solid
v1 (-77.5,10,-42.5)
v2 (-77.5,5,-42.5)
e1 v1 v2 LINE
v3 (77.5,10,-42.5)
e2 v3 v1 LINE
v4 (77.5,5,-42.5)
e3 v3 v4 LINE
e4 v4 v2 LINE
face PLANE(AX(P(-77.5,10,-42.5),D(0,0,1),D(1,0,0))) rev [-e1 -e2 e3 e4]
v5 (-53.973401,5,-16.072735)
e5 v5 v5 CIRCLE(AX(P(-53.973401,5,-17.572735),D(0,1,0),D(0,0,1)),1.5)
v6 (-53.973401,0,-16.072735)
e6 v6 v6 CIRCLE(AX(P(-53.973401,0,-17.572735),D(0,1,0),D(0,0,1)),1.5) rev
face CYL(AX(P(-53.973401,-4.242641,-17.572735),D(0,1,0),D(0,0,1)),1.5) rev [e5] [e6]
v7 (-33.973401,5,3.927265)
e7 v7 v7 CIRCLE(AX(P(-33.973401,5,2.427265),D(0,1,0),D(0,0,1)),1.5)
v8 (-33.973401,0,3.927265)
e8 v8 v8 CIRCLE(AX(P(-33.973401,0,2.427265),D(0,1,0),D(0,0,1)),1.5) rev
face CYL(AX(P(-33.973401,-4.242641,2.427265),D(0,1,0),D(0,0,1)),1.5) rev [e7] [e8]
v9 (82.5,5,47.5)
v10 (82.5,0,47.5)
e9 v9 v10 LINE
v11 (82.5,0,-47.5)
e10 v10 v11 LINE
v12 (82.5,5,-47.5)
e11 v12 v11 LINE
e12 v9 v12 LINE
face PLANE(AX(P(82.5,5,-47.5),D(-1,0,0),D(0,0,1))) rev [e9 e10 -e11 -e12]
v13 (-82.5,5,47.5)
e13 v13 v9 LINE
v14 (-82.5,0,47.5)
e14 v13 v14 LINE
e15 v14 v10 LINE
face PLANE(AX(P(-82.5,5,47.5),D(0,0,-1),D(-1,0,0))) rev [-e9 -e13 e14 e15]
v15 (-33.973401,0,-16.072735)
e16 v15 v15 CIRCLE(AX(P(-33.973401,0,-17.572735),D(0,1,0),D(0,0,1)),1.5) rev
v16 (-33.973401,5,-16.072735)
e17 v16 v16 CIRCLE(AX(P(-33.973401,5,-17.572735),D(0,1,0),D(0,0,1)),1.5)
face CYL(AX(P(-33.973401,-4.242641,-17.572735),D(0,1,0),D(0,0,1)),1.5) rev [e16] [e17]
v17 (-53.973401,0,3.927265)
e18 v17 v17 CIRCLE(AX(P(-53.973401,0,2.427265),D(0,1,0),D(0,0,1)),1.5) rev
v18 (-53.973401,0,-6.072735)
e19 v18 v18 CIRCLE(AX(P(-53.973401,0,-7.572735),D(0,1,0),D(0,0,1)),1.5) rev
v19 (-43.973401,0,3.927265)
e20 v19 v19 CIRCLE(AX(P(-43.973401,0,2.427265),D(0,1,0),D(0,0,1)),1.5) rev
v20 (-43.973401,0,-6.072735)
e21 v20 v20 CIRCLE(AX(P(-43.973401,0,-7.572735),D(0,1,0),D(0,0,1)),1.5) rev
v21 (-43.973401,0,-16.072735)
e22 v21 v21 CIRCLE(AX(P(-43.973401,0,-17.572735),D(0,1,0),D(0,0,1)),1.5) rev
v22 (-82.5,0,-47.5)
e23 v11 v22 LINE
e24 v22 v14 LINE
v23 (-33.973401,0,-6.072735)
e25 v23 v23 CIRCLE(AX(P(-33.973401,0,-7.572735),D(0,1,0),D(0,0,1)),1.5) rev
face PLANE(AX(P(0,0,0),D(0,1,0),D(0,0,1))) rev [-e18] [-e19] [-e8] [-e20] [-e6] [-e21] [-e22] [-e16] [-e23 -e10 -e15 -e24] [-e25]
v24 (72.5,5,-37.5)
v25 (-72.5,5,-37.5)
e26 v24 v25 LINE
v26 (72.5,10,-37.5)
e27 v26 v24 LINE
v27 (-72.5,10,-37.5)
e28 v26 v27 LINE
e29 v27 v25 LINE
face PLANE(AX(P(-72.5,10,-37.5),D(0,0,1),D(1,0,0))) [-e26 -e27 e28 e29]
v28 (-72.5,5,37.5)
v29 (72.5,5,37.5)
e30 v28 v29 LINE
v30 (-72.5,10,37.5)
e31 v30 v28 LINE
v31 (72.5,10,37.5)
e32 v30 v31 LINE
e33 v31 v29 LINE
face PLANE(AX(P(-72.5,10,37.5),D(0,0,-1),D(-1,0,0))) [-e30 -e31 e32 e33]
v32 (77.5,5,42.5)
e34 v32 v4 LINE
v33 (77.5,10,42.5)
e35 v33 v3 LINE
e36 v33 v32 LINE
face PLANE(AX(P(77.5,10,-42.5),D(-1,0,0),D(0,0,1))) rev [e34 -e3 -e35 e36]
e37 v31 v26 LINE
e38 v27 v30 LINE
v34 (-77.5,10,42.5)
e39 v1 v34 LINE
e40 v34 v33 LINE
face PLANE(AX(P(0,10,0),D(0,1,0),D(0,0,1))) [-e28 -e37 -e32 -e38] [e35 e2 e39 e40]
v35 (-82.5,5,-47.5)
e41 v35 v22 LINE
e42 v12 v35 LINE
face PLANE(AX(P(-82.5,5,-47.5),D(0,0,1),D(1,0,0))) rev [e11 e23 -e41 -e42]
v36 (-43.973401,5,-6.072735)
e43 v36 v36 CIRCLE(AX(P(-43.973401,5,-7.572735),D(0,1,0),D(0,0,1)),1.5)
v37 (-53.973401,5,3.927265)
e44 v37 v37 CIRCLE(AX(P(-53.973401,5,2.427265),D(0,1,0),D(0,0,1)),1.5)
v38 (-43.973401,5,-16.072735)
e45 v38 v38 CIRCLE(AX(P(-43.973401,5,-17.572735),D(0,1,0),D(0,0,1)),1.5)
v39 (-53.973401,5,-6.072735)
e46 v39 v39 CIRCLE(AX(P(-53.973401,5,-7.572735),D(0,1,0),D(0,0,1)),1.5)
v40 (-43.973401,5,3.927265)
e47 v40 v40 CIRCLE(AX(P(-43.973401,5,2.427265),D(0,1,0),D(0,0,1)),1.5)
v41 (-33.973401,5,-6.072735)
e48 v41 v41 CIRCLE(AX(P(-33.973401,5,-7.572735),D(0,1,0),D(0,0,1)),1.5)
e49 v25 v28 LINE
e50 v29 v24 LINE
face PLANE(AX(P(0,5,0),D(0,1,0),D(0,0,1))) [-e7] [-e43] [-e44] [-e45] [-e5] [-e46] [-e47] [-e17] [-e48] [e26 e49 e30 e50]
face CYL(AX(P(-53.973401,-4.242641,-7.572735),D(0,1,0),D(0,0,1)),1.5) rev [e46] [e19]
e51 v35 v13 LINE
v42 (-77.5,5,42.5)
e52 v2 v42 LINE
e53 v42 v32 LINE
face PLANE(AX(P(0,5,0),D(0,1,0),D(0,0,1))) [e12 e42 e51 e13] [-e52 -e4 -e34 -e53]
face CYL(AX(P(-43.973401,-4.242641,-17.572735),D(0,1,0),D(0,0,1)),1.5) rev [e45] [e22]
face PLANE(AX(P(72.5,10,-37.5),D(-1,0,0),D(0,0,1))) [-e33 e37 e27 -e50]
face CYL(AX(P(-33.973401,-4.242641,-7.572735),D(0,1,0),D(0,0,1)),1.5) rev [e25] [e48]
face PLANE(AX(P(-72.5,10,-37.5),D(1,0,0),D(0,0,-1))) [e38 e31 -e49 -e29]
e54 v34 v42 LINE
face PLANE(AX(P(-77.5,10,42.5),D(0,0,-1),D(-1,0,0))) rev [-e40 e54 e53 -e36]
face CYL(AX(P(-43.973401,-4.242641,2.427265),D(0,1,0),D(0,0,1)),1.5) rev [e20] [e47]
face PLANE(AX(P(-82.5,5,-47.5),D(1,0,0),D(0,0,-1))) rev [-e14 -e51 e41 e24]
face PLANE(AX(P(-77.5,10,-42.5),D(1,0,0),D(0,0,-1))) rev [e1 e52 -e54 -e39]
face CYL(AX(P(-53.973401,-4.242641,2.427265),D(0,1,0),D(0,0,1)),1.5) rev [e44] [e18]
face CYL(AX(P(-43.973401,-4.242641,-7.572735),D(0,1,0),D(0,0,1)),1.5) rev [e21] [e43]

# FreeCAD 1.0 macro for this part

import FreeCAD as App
import Part
import Sketcher


def add_polygon(sketch, points):
    """Adds a closed chain of lines whose ends are joined by coincident constraints."""
    first, n = sketch.GeometryCount, len(points)
    for a, b in zip(points, points[1:] + points[:1]):
        sketch.addGeometry(Part.LineSegment(App.Vector(*a, 0), App.Vector(*b, 0)), False)
    for i in range(n):
        sketch.addConstraint(Sketcher.Constraint("Coincident", first + i, 2, first + (i + 1) % n, 1))

doc = App.newDocument("Part")
params = doc.addObject("Spreadsheet::Sheet", "Params")
for row, (alias, value) in enumerate([
    ("sketch1_width", "165 mm"),
    ("sketch1_height", "95 mm"),
    ("pad1_length", "5 mm"),
    ("sketch2_width", "155 mm"),
    ("sketch2_width2", "145 mm"),
    ("sketch2_height", "85 mm"),
    ("sketch2_height2", "75 mm"),
    ("pad2_length", "5 mm"),
    ("sketch3_diameter", "3 mm"),
    ("pocket1_length", "5 mm"),
], start=1):
    params.set(f"A{row}", alias)
    params.set(f"B{row}", "=" + value)
    params.setAlias(f"B{row}", alias)

body = doc.addObject("PartDesign::Body", "Body")

# Sketch on XZ plane
sketch1 = body.newObject("Sketcher::SketchObject", "Sketch")
sketch1.AttachmentSupport = (doc.getObject("XZ_Plane"), [""])
sketch1.MapMode = "FlatFace"
add_polygon(sketch1, [(-82, -48), (-82, 48), (82, 48), (82, -48)])  # lines 0-3
sketch1.addConstraint([
    Sketcher.Constraint("Vertical", 0),
    Sketcher.Constraint("Horizontal", 1),
    Sketcher.Constraint("Vertical", 2),
    Sketcher.Constraint("Horizontal", 3),
    Sketcher.Constraint("Symmetric", 0, 2, 2, 2, -1, 1),
    Sketcher.Constraint("DistanceX", 1, 1, 1, 2, 165.0),
    Sketcher.Constraint("DistanceY", 0, 1, 0, 2, 95.0),
])
sketch1.setExpression("Constraints[9]", "Params.sketch1_width")
sketch1.setExpression("Constraints[10]", "Params.sketch1_height")
pad1 = body.newObject("PartDesign::Pad", "Pad")
pad1.Profile = sketch1
pad1.setExpression("Length", "Params.pad1_length")
pad1.Reversed = True

# Sketch on XZ plane
sketch2 = body.newObject("Sketcher::SketchObject", "Sketch001")
sketch2.AttachmentSupport = (doc.getObject("XZ_Plane"), [""])
sketch2.MapMode = "FlatFace"
sketch2.AttachmentOffset = App.Placement(App.Vector(0, 0, -5), App.Rotation())
add_polygon(sketch2, [(-78, -42), (-78, 42), (78, 42), (78, -42)])  # lines 0-3
add_polygon(sketch2, [(72, 38), (-72, 38), (-72, -38), (72, -38)])  # lines 4-7
sketch2.addConstraint([
    Sketcher.Constraint("Vertical", 0),
    Sketcher.Constraint("Horizontal", 1),
    Sketcher.Constraint("Vertical", 2),
    Sketcher.Constraint("Horizontal", 3),
    Sketcher.Constraint("Horizontal", 4),
    Sketcher.Constraint("Vertical", 5),
    Sketcher.Constraint("Horizontal", 6),
    Sketcher.Constraint("Vertical", 7),
    Sketcher.Constraint("Symmetric", 0, 2, 2, 2, -1, 1),
    Sketcher.Constraint("Symmetric", 4, 2, 6, 2, -1, 1),
    Sketcher.Constraint("DistanceX", 1, 1, 1, 2, 155.0),
    Sketcher.Constraint("DistanceX", 4, 2, 4, 1, 145.0),
    Sketcher.Constraint("DistanceY", 0, 1, 0, 2, 85.0),
    Sketcher.Constraint("DistanceY", 5, 2, 5, 1, 75.0),
])
sketch2.setExpression("Constraints[18]", "Params.sketch2_width")
sketch2.setExpression("Constraints[19]", "Params.sketch2_width2")
sketch2.setExpression("Constraints[20]", "Params.sketch2_height")
sketch2.setExpression("Constraints[21]", "Params.sketch2_height2")
pad2 = body.newObject("PartDesign::Pad", "Pad001")
pad2.Profile = sketch2
pad2.setExpression("Length", "Params.pad2_length")
pad2.Reversed = True

# Sketch on XZ plane
sketch3 = body.newObject("Sketcher::SketchObject", "Sketch002")
sketch3.AttachmentSupport = (doc.getObject("XZ_Plane"), [""])
sketch3.MapMode = "FlatFace"
sketch3.AttachmentOffset = App.Placement(App.Vector(0, 0, -5), App.Rotation())
sketch3.addGeometry([
    Part.Circle(App.Vector(-54, -17.6, 0), App.Vector(0, 0, 1), 1.5),  # 0
    Part.Circle(App.Vector(-44, -17.6, 0), App.Vector(0, 0, 1), 1.5),  # 1
    Part.Circle(App.Vector(-34, -17.6, 0), App.Vector(0, 0, 1), 1.5),  # 2
    Part.Circle(App.Vector(-44, -7.6, 0), App.Vector(0, 0, 1), 1.5),  # 3
    Part.Circle(App.Vector(-34, -7.6, 0), App.Vector(0, 0, 1), 1.5),  # 4
    Part.Circle(App.Vector(-44, 2.4, 0), App.Vector(0, 0, 1), 1.5),  # 5
    Part.Circle(App.Vector(-34, 2.4, 0), App.Vector(0, 0, 1), 1.5),  # 6
    Part.Circle(App.Vector(-54, -7.6, 0), App.Vector(0, 0, 1), 1.5),  # 7
    Part.Circle(App.Vector(-54, 2.4, 0), App.Vector(0, 0, 1), 1.5),  # 8
], False)
sketch3.addConstraint([
    Sketcher.Constraint("Equal", 0, 1),
    Sketcher.Constraint("Equal", 1, 2),
    Sketcher.Constraint("Equal", 2, 3),
    Sketcher.Constraint("Equal", 3, 4),
    Sketcher.Constraint("Equal", 4, 5),
    Sketcher.Constraint("Equal", 5, 6),
    Sketcher.Constraint("Equal", 6, 7),
    Sketcher.Constraint("Equal", 7, 8),
    Sketcher.Constraint("Horizontal", 0, 3, 1, 3),
    Sketcher.Constraint("Horizontal", 1, 3, 2, 3),
    Sketcher.Constraint("Horizontal", 3, 3, 4, 3),
    Sketcher.Constraint("Horizontal", 5, 3, 6, 3),
    Sketcher.Constraint("Horizontal", 4, 3, 7, 3),
    Sketcher.Constraint("Horizontal", 6, 3, 8, 3),
    Sketcher.Constraint("Vertical", 1, 3, 3, 3),
    Sketcher.Constraint("Vertical", 2, 3, 4, 3),
    Sketcher.Constraint("Vertical", 3, 3, 5, 3),
    Sketcher.Constraint("Vertical", 4, 3, 6, 3),
    Sketcher.Constraint("Vertical", 0, 3, 7, 3),
    Sketcher.Constraint("Vertical", 7, 3, 8, 3),
    Sketcher.Constraint("Diameter", 0, 3.0),
    Sketcher.Constraint("DistanceX", 0, 3, 1, 3, 10.0),
    Sketcher.Constraint("DistanceX", 1, 3, 2, 3, 10.0),
    Sketcher.Constraint("DistanceY", 1, 3, 3, 3, 10.0),
    Sketcher.Constraint("DistanceY", 3, 3, 5, 3, 10.0),
    Sketcher.Constraint("DistanceX", 0, 3, -1, 1, 53.973401),
    Sketcher.Constraint("DistanceY", 0, 3, -1, 1, 17.572735),
])
sketch3.setExpression("Constraints[20]", "Params.sketch3_diameter")
pocket1 = body.newObject("PartDesign::Pocket", "Pocket")
pocket1.Profile = sketch3
pocket1.setExpression("Length", "Params.pocket1_length")
pocket1.Reversed = True

doc.recompute()
